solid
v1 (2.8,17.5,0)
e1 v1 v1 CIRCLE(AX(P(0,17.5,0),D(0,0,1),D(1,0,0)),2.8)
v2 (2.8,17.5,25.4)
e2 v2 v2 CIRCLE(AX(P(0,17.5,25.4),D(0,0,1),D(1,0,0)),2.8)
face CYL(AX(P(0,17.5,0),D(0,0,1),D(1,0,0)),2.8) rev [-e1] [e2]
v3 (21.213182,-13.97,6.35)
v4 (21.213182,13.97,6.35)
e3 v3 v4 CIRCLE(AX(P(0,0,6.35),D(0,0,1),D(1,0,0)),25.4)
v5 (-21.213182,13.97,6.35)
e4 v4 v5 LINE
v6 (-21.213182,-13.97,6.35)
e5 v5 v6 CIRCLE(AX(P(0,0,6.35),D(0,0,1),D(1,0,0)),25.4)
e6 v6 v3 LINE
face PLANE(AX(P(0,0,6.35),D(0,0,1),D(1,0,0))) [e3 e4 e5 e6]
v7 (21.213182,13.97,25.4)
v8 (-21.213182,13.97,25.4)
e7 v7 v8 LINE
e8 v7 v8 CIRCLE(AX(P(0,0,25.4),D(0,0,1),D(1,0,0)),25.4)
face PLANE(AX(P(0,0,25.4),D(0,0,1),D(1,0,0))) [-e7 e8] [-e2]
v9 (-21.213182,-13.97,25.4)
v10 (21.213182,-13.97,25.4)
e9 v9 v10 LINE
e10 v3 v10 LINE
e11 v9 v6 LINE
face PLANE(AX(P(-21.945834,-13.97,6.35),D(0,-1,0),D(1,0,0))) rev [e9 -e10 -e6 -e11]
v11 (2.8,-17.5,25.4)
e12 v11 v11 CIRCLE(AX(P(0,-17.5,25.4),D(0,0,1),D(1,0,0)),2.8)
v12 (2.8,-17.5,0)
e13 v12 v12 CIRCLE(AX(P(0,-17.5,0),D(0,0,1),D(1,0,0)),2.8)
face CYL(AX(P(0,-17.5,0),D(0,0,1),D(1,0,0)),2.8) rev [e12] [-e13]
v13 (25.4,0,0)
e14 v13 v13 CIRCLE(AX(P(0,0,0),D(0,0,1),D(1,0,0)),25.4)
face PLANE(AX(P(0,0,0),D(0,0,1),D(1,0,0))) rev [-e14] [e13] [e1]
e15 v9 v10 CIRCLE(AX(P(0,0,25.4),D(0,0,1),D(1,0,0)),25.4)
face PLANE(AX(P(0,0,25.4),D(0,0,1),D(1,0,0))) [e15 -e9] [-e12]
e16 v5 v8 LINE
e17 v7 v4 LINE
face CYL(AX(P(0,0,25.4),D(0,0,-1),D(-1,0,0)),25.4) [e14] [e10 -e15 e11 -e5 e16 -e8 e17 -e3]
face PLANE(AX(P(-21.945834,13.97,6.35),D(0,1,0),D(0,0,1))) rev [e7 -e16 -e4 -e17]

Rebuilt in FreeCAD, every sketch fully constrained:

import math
import FreeCAD as App
import Part
import Sketcher
from FreeCAD import Vector
Q = App.Units.Quantity

doc = App.newDocument("Part")
body = doc.addObject("PartDesign::Body", "Body")

# Sketch on XY plane
sketch1 = body.newObject("Sketcher::SketchObject", "Sketch")
sketch1.AttachmentSupport = (doc.getObject("XY_Plane"), [""])
sketch1.MapMode = "FlatFace"
sketch1.addGeometry(Part.Circle(Vector(0, 0, 0), Vector(0, 0, 1), 25.4), False)
sketch1.addConstraint([
    Sketcher.Constraint("Coincident", 0, 3, -1, 1),
    Sketcher.Constraint("Diameter", 0, Q("2 in")),
])
pad1 = body.newObject("PartDesign::Pad", "Pad")
pad1.Profile = sketch1
pad1.Length = Q("1 in")

# Sketch on XY plane
sketch2 = body.newObject("Sketcher::SketchObject", "Sketch001")
sketch2.AttachmentSupport = (doc.getObject("XY_Plane"), [""])
sketch2.MapMode = "FlatFace"
sketch2.AttachmentOffset = App.Placement(Vector(0, 0, 1 * 25.4), App.Rotation())
sketch2.addGeometry([
    Part.LineSegment(Vector(21.945834, 13.97, 0), Vector(-21.945834, 13.97, 0)),
    Part.ArcOfCircle(Part.Circle(Vector(0, 0, 0), Vector(0, 0, 1), 26.015006), math.radians(147.520504), math.radians(212.479496)),
    Part.LineSegment(Vector(-21.945834, -13.97, 0), Vector(21.945834, -13.97, 0)),
    Part.ArcOfCircle(Part.Circle(Vector(0, 0, 0), Vector(0, 0, 1), 26.015006), math.radians(-32.479496), math.radians(32.479496)),
], False)
sketch2.addConstraint([
    Sketcher.Constraint("Coincident", 0, 2, 1, 1),
    Sketcher.Constraint("Coincident", 1, 2, 2, 1),
    Sketcher.Constraint("Coincident", 2, 2, 3, 1),
    Sketcher.Constraint("Coincident", 3, 2, 0, 1),
    Sketcher.Constraint("Horizontal", 0),
    Sketcher.Constraint("Horizontal", 2),
    Sketcher.Constraint("Coincident", 1, 3, -1, 1),
    Sketcher.Constraint("Coincident", 3, 3, -1, 1),
    Sketcher.Constraint("Equal", 1, 3),
    Sketcher.Constraint("Vertical", 0, 2, 1, 2),
    Sketcher.Constraint("DistanceY", 1, 2, 0, 2, Q("1.1 in")),
    Sketcher.Constraint("Radius", 1, Q("26.015006 mm")),
])
pocket1 = body.newObject("PartDesign::Pocket", "Pocket")
pocket1.Profile = sketch2
pocket1.Length = Q("0.75 in")

# Sketch on XY plane
sketch3 = body.newObject("Sketcher::SketchObject", "Sketch002")
sketch3.AttachmentSupport = (doc.getObject("XY_Plane"), [""])
sketch3.MapMode = "FlatFace"
sketch3.AttachmentOffset = App.Placement(Vector(0, 0, 1 * 25.4), App.Rotation())
sketch3.addGeometry([
    Part.Circle(Vector(0, 17.5, 0), Vector(0, 0, 1), 2.8),
    Part.Circle(Vector(0, -17.5, 0), Vector(0, 0, 1), 2.8),
], False)
sketch3.addConstraint([
    Sketcher.Constraint("Equal", 0, 1),
    Sketcher.Constraint("Symmetric", 0, 3, 1, 3, -1, 1),
    Sketcher.Constraint("PointOnObject", 0, 3, -2),
    Sketcher.Constraint("Diameter", 0, Q("5.6 mm")),
    Sketcher.Constraint("DistanceY", -1, 1, 0, 3, Q("17.5 mm")),
])
pocket2 = body.newObject("PartDesign::Pocket", "Pocket001")
pocket2.Profile = sketch3
pocket2.Type = "ThroughAll"

doc.recompute()
